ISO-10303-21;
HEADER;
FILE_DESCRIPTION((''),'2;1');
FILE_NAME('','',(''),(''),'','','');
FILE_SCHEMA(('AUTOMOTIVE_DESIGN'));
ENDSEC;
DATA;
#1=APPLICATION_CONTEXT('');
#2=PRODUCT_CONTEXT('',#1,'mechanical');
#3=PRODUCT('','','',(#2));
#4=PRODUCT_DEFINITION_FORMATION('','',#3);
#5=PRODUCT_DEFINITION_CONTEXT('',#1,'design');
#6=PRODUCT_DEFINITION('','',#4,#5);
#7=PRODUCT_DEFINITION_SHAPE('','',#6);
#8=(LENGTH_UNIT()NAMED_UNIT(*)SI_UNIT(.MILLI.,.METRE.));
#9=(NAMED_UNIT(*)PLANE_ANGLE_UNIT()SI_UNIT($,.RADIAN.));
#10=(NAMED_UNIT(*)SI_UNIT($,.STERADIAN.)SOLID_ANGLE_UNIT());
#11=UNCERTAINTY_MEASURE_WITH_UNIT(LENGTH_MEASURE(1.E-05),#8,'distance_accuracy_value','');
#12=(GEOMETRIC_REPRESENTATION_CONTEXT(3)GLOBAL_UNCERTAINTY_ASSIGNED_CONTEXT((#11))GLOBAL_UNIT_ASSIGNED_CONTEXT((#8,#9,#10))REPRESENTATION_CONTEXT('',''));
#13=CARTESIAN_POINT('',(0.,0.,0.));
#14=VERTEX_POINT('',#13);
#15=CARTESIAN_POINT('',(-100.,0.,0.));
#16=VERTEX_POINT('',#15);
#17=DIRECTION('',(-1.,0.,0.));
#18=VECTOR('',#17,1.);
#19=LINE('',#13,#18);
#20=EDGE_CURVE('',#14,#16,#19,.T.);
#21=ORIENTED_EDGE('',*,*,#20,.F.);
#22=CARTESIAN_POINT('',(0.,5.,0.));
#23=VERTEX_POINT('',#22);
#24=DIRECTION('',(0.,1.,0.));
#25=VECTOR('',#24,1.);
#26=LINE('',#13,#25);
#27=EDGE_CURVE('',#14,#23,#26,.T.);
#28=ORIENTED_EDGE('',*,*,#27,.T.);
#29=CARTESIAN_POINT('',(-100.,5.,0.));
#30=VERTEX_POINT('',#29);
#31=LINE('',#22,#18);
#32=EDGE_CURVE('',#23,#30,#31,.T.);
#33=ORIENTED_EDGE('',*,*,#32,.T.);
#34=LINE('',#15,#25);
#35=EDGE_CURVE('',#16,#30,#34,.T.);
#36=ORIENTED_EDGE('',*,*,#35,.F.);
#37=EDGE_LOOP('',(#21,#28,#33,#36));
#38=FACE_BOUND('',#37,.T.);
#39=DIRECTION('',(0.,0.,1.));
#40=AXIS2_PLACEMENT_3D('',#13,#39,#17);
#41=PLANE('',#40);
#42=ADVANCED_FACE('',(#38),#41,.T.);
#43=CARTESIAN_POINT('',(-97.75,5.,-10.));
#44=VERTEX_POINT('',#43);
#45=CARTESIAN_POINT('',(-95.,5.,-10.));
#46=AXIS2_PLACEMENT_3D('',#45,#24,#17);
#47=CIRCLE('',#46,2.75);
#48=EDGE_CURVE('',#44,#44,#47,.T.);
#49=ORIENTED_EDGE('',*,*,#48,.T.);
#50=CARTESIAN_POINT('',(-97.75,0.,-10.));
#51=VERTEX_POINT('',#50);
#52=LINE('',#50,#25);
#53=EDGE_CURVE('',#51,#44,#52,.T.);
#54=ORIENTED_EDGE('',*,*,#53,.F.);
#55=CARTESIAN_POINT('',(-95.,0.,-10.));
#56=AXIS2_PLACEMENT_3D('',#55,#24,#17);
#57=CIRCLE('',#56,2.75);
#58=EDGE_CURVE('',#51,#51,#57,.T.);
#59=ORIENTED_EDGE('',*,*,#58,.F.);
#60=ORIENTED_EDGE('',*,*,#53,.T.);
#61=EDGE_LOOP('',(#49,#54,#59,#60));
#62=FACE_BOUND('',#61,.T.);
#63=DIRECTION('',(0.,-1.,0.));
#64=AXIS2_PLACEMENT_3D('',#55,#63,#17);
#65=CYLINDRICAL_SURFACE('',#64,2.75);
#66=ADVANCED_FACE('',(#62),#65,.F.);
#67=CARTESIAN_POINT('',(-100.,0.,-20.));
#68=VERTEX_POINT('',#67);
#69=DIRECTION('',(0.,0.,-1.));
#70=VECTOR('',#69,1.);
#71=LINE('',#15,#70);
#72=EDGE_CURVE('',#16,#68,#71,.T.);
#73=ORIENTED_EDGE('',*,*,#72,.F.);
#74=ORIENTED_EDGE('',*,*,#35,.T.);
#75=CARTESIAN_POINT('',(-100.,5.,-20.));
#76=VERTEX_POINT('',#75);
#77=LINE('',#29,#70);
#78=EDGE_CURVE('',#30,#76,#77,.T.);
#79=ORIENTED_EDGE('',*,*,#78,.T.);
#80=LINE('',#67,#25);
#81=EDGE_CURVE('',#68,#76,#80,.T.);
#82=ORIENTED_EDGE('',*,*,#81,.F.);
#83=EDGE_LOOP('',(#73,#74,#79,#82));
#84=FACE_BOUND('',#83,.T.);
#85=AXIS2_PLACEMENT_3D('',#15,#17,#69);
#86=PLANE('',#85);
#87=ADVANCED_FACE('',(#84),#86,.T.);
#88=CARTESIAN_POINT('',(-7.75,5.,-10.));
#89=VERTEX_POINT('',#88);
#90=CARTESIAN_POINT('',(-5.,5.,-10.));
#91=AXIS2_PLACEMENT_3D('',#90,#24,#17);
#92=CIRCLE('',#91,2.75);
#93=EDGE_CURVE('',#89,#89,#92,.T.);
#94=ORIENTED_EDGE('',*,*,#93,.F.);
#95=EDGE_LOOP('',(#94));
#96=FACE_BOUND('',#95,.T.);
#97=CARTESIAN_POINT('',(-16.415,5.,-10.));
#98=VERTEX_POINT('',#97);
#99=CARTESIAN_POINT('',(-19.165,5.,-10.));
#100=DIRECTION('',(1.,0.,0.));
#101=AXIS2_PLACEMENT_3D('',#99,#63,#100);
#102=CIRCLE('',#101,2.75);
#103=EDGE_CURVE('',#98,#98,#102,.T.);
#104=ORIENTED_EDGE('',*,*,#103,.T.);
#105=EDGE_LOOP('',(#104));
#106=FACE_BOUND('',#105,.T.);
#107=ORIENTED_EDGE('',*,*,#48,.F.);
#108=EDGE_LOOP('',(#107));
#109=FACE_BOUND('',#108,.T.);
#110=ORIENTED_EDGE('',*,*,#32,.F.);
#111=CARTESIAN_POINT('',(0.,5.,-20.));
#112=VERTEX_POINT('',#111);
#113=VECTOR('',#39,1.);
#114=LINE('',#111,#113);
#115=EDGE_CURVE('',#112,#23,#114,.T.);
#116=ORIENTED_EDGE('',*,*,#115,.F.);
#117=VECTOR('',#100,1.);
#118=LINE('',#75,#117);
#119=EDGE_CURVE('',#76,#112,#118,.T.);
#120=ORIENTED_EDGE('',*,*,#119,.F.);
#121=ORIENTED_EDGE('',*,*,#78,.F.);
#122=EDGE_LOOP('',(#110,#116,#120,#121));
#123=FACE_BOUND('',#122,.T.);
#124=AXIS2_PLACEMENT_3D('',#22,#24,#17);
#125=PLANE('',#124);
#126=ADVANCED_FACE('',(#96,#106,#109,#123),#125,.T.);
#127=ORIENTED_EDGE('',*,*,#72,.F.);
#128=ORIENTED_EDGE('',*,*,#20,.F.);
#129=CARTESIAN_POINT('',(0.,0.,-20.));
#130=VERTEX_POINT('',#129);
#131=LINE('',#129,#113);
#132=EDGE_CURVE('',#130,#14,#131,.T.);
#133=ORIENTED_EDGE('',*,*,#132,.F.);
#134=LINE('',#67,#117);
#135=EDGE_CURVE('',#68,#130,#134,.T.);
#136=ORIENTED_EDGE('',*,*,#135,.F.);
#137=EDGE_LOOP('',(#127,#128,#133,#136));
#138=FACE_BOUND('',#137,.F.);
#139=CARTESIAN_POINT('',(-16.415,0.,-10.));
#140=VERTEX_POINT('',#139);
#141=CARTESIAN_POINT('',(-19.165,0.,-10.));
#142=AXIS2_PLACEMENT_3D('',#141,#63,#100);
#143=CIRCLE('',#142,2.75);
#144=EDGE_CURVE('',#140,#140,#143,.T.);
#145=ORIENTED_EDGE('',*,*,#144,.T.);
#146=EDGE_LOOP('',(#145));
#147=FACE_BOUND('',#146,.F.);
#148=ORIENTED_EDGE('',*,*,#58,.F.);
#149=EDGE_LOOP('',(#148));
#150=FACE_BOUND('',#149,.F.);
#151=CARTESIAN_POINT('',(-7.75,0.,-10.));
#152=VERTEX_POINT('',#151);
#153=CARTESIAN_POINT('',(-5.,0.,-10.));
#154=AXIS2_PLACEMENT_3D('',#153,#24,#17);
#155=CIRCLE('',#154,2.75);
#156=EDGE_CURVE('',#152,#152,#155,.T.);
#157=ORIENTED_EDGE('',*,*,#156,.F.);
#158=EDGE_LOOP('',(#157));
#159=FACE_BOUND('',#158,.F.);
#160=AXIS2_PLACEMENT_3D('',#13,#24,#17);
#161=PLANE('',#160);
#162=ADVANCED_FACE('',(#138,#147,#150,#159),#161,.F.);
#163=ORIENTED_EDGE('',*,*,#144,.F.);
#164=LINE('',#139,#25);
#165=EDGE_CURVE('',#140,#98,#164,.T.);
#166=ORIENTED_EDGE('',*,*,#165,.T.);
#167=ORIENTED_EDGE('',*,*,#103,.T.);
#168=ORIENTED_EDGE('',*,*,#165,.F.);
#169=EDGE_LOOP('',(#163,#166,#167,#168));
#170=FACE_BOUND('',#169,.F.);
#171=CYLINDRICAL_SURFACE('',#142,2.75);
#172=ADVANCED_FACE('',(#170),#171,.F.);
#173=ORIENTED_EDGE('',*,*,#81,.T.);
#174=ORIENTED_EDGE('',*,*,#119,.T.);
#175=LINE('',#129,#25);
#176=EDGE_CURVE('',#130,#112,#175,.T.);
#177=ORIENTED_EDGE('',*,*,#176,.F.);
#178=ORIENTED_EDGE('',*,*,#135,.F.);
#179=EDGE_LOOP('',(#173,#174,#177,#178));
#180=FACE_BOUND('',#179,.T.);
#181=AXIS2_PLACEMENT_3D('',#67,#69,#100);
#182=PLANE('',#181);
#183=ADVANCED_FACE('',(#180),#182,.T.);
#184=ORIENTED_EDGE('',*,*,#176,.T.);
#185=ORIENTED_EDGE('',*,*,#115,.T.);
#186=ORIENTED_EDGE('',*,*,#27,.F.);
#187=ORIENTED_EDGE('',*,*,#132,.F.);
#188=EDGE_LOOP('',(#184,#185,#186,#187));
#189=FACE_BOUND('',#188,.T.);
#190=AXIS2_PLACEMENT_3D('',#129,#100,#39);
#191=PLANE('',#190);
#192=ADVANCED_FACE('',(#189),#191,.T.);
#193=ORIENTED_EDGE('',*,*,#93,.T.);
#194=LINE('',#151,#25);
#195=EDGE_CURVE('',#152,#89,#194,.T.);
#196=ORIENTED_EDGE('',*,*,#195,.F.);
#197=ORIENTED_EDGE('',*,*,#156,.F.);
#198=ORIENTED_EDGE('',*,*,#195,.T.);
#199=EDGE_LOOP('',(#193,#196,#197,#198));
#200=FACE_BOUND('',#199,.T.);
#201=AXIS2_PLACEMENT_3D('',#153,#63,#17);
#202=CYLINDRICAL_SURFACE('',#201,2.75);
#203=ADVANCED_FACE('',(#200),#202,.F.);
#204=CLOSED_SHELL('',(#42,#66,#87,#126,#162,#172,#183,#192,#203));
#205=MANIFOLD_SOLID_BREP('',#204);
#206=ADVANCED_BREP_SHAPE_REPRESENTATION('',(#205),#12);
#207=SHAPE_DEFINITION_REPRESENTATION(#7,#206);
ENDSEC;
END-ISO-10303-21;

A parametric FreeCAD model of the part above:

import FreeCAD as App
import Part
import Sketcher


def add_polygon(sketch, points):
    """Adds a closed chain of lines whose ends are joined by coincident constraints."""
    first, n = sketch.GeometryCount, len(points)
    for a, b in zip(points, points[1:] + points[:1]):
        sketch.addGeometry(Part.LineSegment(App.Vector(*a, 0), App.Vector(*b, 0)), False)
    for i in range(n):
        sketch.addConstraint(Sketcher.Constraint("Coincident", first + i, 2, first + (i + 1) % n, 1))

doc = App.newDocument("Part")
body = doc.addObject("PartDesign::Body", "Body")

sketch1 = body.newObject("Sketcher::SketchObject", "Sketch")
sketch1.AttachmentSupport = (doc.getObject("XZ_Plane"), [""])
sketch1.MapMode = "FlatFace"
add_polygon(sketch1, [(-100, 0), (0, 0), (0, -20), (-100, -20)])
sketch1.addGeometry(Part.Circle(App.Vector(-5, -10, 0), App.Vector(0, 0, 1), 2.8), False)
sketch1.addGeometry(Part.Circle(App.Vector(-95, -10, 0), App.Vector(0, 0, 1), 2.8), False)
sketch1.addConstraint([
    Sketcher.Constraint("Horizontal", 0),
    Sketcher.Constraint("Vertical", 1),
    Sketcher.Constraint("Horizontal", 2),
    Sketcher.Constraint("Vertical", 3),
    Sketcher.Constraint("Coincident", 0, 2, -1, 1),
    Sketcher.Constraint("Equal", 4, 5),
    Sketcher.Constraint("Horizontal", 4, 3, 5, 3),
    Sketcher.Constraint("Diameter", 4, 5.5),
    Sketcher.Constraint("DistanceX", 0, 1, 0, 2, 100.0),
    Sketcher.Constraint("DistanceY", 1, 2, 1, 1, 20.0),
    Sketcher.Constraint("DistanceX", 4, 3, -1, 1, 5.0),
    Sketcher.Constraint("DistanceX", 2, 2, 5, 3, 5.0),
    Sketcher.Constraint("DistanceY", 4, 3, -1, 1, 10.0),
])
pad1 = body.newObject("PartDesign::Pad", "Pad")
pad1.Profile = sketch1
pad1.Length = 5
pad1.Reversed = True

sketch2 = body.newObject("Sketcher::SketchObject", "Sketch001")
sketch2.AttachmentSupport = (doc.getObject("XZ_Plane"), [""])
sketch2.MapMode = "FlatFace"
sketch2.addGeometry(Part.Circle(App.Vector(-19.2, -10, 0), App.Vector(0, 0, 1), 2.8), False)
sketch2.addConstraint([
    Sketcher.Constraint("Diameter", 0, 5.5),
    Sketcher.Constraint("DistanceY", 0, 3, -1, 1, 10.0),
    Sketcher.Constraint("DistanceX", 0, 3, -1, 1, 19.165),
])
pocket1 = body.newObject("PartDesign::Pocket", "Pocket")
pocket1.Profile = sketch2
pocket1.Length = 10

doc.recompute()
